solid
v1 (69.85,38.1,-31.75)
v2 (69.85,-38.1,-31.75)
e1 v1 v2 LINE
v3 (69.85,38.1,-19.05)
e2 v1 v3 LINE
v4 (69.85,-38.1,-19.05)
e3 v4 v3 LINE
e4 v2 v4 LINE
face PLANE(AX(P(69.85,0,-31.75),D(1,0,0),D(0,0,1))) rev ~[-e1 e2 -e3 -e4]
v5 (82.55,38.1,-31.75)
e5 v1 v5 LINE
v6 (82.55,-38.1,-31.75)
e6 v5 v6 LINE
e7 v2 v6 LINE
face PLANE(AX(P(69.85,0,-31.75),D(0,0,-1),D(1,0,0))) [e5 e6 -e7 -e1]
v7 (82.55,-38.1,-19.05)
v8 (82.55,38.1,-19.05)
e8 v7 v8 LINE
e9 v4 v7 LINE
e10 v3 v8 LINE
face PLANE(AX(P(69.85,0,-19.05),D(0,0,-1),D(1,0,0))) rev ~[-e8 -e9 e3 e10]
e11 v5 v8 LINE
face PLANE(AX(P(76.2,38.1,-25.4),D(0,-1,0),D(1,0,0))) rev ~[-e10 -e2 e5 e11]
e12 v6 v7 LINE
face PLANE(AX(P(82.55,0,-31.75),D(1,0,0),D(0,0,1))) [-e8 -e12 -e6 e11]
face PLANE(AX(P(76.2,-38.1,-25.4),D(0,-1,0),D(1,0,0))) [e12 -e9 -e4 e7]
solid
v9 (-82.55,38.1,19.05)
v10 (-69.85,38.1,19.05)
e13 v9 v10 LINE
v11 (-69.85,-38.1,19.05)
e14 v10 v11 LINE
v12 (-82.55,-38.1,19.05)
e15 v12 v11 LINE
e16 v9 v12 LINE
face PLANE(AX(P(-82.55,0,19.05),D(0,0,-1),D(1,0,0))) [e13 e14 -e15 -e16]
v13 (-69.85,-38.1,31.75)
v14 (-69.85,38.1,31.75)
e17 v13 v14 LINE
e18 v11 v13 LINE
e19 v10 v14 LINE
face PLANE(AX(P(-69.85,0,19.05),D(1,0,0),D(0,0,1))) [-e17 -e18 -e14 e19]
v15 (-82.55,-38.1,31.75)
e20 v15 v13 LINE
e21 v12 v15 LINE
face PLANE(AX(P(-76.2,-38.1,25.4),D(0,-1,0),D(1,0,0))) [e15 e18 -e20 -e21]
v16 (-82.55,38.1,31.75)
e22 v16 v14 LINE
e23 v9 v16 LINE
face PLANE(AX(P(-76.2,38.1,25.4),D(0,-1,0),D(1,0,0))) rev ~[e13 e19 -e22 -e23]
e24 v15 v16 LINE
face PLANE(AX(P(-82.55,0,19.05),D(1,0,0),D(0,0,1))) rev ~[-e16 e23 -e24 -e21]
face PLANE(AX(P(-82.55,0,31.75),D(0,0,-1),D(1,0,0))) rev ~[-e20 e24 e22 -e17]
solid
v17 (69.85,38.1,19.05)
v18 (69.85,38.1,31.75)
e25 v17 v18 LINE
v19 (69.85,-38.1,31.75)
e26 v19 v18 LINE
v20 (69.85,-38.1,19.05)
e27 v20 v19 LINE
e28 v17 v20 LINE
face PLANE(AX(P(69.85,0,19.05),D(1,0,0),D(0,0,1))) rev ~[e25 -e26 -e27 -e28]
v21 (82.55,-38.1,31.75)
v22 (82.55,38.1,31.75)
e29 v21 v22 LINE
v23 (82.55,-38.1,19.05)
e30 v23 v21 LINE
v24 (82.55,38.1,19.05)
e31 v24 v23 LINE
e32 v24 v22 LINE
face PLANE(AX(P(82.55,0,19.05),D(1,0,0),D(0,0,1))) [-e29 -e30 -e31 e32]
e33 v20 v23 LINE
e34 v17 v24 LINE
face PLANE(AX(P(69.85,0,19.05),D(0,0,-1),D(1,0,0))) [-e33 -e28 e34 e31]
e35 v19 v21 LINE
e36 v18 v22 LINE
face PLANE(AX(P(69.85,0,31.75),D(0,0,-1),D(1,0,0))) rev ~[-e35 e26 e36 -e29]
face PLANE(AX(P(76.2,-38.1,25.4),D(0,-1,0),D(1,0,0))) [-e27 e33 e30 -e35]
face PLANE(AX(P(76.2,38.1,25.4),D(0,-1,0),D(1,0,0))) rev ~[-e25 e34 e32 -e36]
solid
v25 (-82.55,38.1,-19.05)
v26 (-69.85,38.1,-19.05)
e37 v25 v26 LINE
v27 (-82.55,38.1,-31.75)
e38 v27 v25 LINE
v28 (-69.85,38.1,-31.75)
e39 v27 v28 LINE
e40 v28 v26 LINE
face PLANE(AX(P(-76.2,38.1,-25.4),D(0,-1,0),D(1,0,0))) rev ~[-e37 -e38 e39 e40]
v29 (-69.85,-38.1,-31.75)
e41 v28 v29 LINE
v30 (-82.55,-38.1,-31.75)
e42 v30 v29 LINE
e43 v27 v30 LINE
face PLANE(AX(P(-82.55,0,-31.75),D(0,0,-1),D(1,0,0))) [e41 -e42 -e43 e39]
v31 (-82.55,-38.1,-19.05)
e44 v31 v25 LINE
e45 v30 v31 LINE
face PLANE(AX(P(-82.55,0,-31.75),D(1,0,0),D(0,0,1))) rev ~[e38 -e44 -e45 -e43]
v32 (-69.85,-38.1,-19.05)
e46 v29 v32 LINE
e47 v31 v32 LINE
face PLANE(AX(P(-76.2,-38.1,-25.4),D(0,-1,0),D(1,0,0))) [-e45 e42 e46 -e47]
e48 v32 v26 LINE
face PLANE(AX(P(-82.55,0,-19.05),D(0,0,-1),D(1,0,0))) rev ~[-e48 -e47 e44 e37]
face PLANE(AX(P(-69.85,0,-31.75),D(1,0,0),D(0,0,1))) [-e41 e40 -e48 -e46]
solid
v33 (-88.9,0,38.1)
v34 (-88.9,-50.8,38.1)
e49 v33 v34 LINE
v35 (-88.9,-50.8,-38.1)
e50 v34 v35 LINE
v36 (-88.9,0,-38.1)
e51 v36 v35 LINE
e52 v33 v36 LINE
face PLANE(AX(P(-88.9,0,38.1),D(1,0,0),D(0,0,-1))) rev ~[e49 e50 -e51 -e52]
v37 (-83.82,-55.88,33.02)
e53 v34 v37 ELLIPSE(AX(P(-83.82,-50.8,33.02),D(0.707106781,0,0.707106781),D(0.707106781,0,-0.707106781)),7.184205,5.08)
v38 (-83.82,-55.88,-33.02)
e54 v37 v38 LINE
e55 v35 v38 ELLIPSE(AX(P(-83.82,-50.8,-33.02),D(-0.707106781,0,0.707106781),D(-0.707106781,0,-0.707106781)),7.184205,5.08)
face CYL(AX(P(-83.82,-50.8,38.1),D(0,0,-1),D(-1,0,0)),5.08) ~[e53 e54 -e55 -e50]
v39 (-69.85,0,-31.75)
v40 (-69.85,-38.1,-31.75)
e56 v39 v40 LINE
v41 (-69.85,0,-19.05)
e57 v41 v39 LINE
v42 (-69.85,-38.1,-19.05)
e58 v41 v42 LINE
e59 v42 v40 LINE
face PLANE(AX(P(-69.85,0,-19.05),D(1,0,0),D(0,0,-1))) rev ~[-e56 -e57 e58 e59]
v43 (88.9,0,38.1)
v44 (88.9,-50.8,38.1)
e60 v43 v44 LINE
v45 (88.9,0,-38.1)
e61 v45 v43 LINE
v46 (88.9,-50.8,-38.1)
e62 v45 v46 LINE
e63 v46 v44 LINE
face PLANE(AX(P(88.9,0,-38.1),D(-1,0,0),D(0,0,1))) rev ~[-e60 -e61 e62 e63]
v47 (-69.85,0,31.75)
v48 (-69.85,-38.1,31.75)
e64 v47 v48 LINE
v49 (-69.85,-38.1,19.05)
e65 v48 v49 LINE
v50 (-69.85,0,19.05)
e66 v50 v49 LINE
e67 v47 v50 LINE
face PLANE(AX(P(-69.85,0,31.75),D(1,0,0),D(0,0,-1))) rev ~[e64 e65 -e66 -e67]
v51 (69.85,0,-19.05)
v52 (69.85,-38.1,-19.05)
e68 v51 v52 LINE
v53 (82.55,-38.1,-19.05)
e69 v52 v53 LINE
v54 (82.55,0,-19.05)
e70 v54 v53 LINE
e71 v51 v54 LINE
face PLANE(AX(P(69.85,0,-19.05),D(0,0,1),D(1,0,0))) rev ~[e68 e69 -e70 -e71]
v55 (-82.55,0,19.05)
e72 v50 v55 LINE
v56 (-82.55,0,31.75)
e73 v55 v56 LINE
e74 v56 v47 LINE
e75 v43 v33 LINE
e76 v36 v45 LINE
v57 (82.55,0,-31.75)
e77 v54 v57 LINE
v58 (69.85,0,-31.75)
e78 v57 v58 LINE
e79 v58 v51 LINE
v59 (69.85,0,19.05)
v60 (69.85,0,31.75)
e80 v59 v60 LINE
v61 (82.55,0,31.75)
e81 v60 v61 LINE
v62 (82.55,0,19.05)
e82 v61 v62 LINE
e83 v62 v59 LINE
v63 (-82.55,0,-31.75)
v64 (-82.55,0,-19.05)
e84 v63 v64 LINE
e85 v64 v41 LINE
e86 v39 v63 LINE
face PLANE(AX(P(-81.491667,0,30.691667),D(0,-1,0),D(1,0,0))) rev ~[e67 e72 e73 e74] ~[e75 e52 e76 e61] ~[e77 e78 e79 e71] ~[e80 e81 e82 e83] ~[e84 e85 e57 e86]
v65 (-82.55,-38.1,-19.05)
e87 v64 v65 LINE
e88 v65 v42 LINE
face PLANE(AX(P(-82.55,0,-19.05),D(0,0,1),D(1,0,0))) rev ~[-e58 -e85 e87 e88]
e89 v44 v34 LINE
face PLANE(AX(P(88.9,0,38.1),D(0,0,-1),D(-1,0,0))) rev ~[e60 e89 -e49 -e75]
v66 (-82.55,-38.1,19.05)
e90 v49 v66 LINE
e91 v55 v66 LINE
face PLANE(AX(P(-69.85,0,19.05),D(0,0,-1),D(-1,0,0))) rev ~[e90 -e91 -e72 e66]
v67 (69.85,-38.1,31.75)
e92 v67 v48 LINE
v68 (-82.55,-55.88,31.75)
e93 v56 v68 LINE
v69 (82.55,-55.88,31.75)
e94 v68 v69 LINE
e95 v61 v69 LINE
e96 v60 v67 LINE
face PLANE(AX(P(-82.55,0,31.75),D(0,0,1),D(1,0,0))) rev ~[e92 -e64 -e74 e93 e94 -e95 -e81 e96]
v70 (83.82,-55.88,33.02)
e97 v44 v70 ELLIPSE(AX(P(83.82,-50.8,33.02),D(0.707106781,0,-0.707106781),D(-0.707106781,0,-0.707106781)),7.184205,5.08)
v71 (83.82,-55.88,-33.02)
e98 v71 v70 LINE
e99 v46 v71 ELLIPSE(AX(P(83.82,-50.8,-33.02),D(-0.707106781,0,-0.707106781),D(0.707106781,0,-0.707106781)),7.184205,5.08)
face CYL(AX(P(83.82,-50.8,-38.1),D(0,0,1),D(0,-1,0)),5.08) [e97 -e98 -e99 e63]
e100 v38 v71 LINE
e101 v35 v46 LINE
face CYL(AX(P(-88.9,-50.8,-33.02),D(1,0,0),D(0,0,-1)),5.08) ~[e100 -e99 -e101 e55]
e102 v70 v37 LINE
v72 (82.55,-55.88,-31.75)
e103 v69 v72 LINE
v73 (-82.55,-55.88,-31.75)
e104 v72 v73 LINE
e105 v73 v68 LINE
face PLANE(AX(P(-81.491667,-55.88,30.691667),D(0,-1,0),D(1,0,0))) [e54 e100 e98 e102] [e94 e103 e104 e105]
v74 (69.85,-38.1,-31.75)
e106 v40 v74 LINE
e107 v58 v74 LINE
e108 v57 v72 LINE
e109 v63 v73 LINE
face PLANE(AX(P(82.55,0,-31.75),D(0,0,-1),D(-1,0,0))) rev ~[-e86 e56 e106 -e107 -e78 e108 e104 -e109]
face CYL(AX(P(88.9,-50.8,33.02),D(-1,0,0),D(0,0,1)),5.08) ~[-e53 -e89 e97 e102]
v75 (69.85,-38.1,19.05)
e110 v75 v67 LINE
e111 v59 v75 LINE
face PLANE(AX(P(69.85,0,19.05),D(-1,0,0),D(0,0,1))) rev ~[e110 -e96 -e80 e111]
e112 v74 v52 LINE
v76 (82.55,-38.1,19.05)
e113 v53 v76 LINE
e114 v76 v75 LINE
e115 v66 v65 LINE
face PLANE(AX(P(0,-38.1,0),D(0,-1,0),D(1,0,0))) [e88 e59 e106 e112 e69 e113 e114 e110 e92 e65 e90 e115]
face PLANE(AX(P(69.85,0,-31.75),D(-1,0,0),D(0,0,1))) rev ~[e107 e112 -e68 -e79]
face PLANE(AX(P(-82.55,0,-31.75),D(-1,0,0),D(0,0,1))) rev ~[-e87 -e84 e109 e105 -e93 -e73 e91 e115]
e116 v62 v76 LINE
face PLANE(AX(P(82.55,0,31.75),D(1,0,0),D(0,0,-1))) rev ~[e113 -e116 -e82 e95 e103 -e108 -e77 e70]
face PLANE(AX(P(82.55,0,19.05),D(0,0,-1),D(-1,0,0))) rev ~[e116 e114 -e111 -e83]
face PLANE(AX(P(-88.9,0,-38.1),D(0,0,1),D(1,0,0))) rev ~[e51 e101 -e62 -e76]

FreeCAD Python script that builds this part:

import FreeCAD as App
import Part
import Sketcher
Q = App.Units.Quantity


def edges_at(feature, points):
    """Names of the edges that pass closest to the given points."""
    edges = feature.Shape.Edges
    near = lambda p: min(range(len(edges)), key=lambda i: edges[i].distToShape(Part.Vertex(*p))[0])
    return sorted({f"Edge{near(p) + 1}" for p in points})

doc = App.newDocument("Part")
body = doc.addObject("PartDesign::Body", "Body")

sketch1 = body.newObject("Sketcher::SketchObject", "Sketch")
sketch1.AttachmentSupport = (doc.getObject("XZ_Plane"), [""])
sketch1.MapMode = "FlatFace"
sketch1.addGeometry([
    Part.LineSegment(App.Vector(-88.9, 38.1, 0), App.Vector(-88.9, -38.1, 0)),
    Part.LineSegment(App.Vector(-88.9, -38.1, 0), App.Vector(88.9, -38.1, 0)),
    Part.LineSegment(App.Vector(88.9, -38.1, 0), App.Vector(88.9, 38.1, 0)),
    Part.LineSegment(App.Vector(88.9, 38.1, 0), App.Vector(-88.9, 38.1, 0)),
    Part.LineSegment(App.Vector(-82.55, 31.75, 0), App.Vector(82.55, 31.75, 0)),
    Part.LineSegment(App.Vector(82.55, 31.75, 0), App.Vector(82.55, -31.75, 0)),
    Part.LineSegment(App.Vector(82.55, -31.75, 0), App.Vector(-82.55, -31.75, 0)),
    Part.LineSegment(App.Vector(-82.55, -31.75, 0), App.Vector(-82.55, 31.75, 0)),
], False)
sketch1.addConstraint([
    Sketcher.Constraint("Coincident", 0, 2, 1, 1),
    Sketcher.Constraint("Coincident", 1, 2, 2, 1),
    Sketcher.Constraint("Coincident", 2, 2, 3, 1),
    Sketcher.Constraint("Coincident", 3, 2, 0, 1),
    Sketcher.Constraint("Coincident", 4, 2, 5, 1),
    Sketcher.Constraint("Coincident", 5, 2, 6, 1),
    Sketcher.Constraint("Coincident", 6, 2, 7, 1),
    Sketcher.Constraint("Coincident", 7, 2, 4, 1),
    Sketcher.Constraint("Vertical", 0),
    Sketcher.Constraint("Horizontal", 1),
    Sketcher.Constraint("Vertical", 2),
    Sketcher.Constraint("Horizontal", 3),
    Sketcher.Constraint("Horizontal", 4),
    Sketcher.Constraint("Vertical", 5),
    Sketcher.Constraint("Horizontal", 6),
    Sketcher.Constraint("Vertical", 7),
    Sketcher.Constraint("Symmetric", 0, 2, 2, 2, -1, 1),
    Sketcher.Constraint("Symmetric", 4, 2, 6, 2, -1, 1),
    Sketcher.Constraint("DistanceX", 1, 1, 1, 2, Q("7 in")),
    Sketcher.Constraint("DistanceY", 0, 2, 0, 1, Q("3 in")),
    Sketcher.Constraint("DistanceX", 4, 1, 4, 2, Q("6.5 in")),
    Sketcher.Constraint("DistanceY", 5, 2, 5, 1, Q("2.5 in")),
])
pad1 = body.newObject("PartDesign::Pad", "Pad")
pad1.Profile = sketch1
pad1.Length = Q("2.2 in")

sketch2 = body.newObject("Sketcher::SketchObject", "Sketch001")
sketch2.AttachmentSupport = (doc.getObject("XZ_Plane"), [""])
sketch2.MapMode = "FlatFace"
sketch2.addGeometry([
    Part.LineSegment(App.Vector(69.85, 19.05, 0), App.Vector(69.85, 31.75, 0)),
    Part.LineSegment(App.Vector(69.85, 31.75, 0), App.Vector(-69.85, 31.75, 0)),
    Part.LineSegment(App.Vector(-69.85, 31.75, 0), App.Vector(-69.85, 19.05, 0)),
    Part.LineSegment(App.Vector(-69.85, 19.05, 0), App.Vector(-82.55, 19.05, 0)),
    Part.LineSegment(App.Vector(-82.55, 19.05, 0), App.Vector(-82.55, -19.05, 0)),
    Part.LineSegment(App.Vector(-82.55, -19.05, 0), App.Vector(-69.85, -19.05, 0)),
    Part.LineSegment(App.Vector(-69.85, -19.05, 0), App.Vector(-69.85, -31.75, 0)),
    Part.LineSegment(App.Vector(-69.85, -31.75, 0), App.Vector(69.85, -31.75, 0)),
    Part.LineSegment(App.Vector(69.85, -31.75, 0), App.Vector(69.85, -19.05, 0)),
    Part.LineSegment(App.Vector(69.85, -19.05, 0), App.Vector(82.55, -19.05, 0)),
    Part.LineSegment(App.Vector(82.55, -19.05, 0), App.Vector(82.55, 19.05, 0)),
    Part.LineSegment(App.Vector(82.55, 19.05, 0), App.Vector(69.85, 19.05, 0)),
], False)
sketch2.addConstraint([
    Sketcher.Constraint("Coincident", 0, 2, 1, 1),
    Sketcher.Constraint("Coincident", 1, 2, 2, 1),
    Sketcher.Constraint("Coincident", 2, 2, 3, 1),
    Sketcher.Constraint("Coincident", 3, 2, 4, 1),
    Sketcher.Constraint("Coincident", 4, 2, 5, 1),
    Sketcher.Constraint("Coincident", 5, 2, 6, 1),
    Sketcher.Constraint("Coincident", 6, 2, 7, 1),
    Sketcher.Constraint("Coincident", 7, 2, 8, 1),
    Sketcher.Constraint("Coincident", 8, 2, 9, 1),
    Sketcher.Constraint("Coincident", 9, 2, 10, 1),
    Sketcher.Constraint("Coincident", 10, 2, 11, 1),
    Sketcher.Constraint("Coincident", 11, 2, 0, 1),
    Sketcher.Constraint("Vertical", 0),
    Sketcher.Constraint("Horizontal", 1),
    Sketcher.Constraint("Vertical", 2),
    Sketcher.Constraint("Horizontal", 3),
    Sketcher.Constraint("Vertical", 4),
    Sketcher.Constraint("Horizontal", 5),
    Sketcher.Constraint("Vertical", 6),
    Sketcher.Constraint("Horizontal", 7),
    Sketcher.Constraint("Vertical", 8),
    Sketcher.Constraint("Horizontal", 9),
    Sketcher.Constraint("Vertical", 10),
    Sketcher.Constraint("Horizontal", 11),
    Sketcher.Constraint("Symmetric", 0, 2, 6, 2, -1, 1),
    Sketcher.Constraint("Symmetric", 2, 2, 8, 2, -1, 1),
    Sketcher.Constraint("Symmetric", 4, 2, 10, 2, -1, 1),
    Sketcher.Constraint("Symmetric", 5, 2, 8, 2, -2),
    Sketcher.Constraint("Equal", 11, 0),
    Sketcher.Constraint("DistanceX", 1, 2, 1, 1, Q("5.5 in")),
    Sketcher.Constraint("DistanceX", 3, 2, 3, 1, Q("0.5 in")),
    Sketcher.Constraint("DistanceY", 4, 2, 4, 1, Q("1.5 in")),
])
pad2 = body.newObject("PartDesign::Pad", "Pad001")
pad2.Profile = sketch2
pad2.Length = Q("1.5 in")
doc.recompute()

fillet = body.newObject("PartDesign::Fillet", "Fillet")
fillet.Base = (pad2, edges_at(pad2, [
    (-88.9, -55.88, 0),
    (0, -55.88, 38.1),
    (0, -55.88, -38.1),
    (88.9, -55.88, 0),
]))
fillet.Radius = Q("0.2 in")
body2 = doc.addObject("PartDesign::Body", "Body001")

sketch3 = body2.newObject("Sketcher::SketchObject", "Sketch002")
sketch3.AttachmentSupport = (doc.getObject("XZ_Plane001"), [""])
sketch3.MapMode = "FlatFace"
sketch3.addGeometry([
    Part.LineSegment(App.Vector(-82.55, 31.75, 0), App.Vector(-82.55, 19.05, 0)),
    Part.LineSegment(App.Vector(-82.55, 19.05, 0), App.Vector(-69.85, 19.05, 0)),
    Part.LineSegment(App.Vector(-69.85, 19.05, 0), App.Vector(-69.85, 31.75, 0)),
    Part.LineSegment(App.Vector(-69.85, 31.75, 0), App.Vector(-82.55, 31.75, 0)),
], False)
sketch3.addConstraint([
    Sketcher.Constraint("Coincident", 0, 2, 1, 1),
    Sketcher.Constraint("Coincident", 1, 2, 2, 1),
    Sketcher.Constraint("Coincident", 2, 2, 3, 1),
    Sketcher.Constraint("Coincident", 3, 2, 0, 1),
    Sketcher.Constraint("Vertical", 0),
    Sketcher.Constraint("Horizontal", 1),
    Sketcher.Constraint("Vertical", 2),
    Sketcher.Constraint("Horizontal", 3),
    Sketcher.Constraint("Equal", 3, 0),
    Sketcher.Constraint("DistanceX", 1, 1, 1, 2, Q("0.5 in")),
    Sketcher.Constraint("DistanceX", 0, 2, -1, 1, Q("3.25 in")),
    Sketcher.Constraint("DistanceY", -1, 1, 0, 2, Q("0.75 in")),
])
pad3 = body2.newObject("PartDesign::Pad", "Pad002")
pad3.Profile = sketch3
pad3.Length = Q("3 in")
pad3.Midplane = True
body3 = doc.addObject("PartDesign::Body", "Body002")

sketch4 = body3.newObject("Sketcher::SketchObject", "Sketch003")
sketch4.AttachmentSupport = (doc.getObject("XZ_Plane002"), [""])
sketch4.MapMode = "FlatFace"
sketch4.addGeometry([
    Part.LineSegment(App.Vector(-82.55, -19.05, 0), App.Vector(-82.55, -31.75, 0)),
    Part.LineSegment(App.Vector(-82.55, -31.75, 0), App.Vector(-69.85, -31.75, 0)),
    Part.LineSegment(App.Vector(-69.85, -31.75, 0), App.Vector(-69.85, -19.05, 0)),
    Part.LineSegment(App.Vector(-69.85, -19.05, 0), App.Vector(-82.55, -19.05, 0)),
], False)
sketch4.addConstraint([
    Sketcher.Constraint("Coincident", 0, 2, 1, 1),
    Sketcher.Constraint("Coincident", 1, 2, 2, 1),
    Sketcher.Constraint("Coincident", 2, 2, 3, 1),
    Sketcher.Constraint("Coincident", 3, 2, 0, 1),
    Sketcher.Constraint("Vertical", 0),
    Sketcher.Constraint("Horizontal", 1),
    Sketcher.Constraint("Vertical", 2),
    Sketcher.Constraint("Horizontal", 3),
    Sketcher.Constraint("Equal", 3, 0),
    Sketcher.Constraint("DistanceX", 1, 1, 1, 2, Q("0.5 in")),
    Sketcher.Constraint("DistanceX", 0, 2, -1, 1, Q("3.25 in")),
    Sketcher.Constraint("DistanceY", 0, 2, -1, 1, Q("1.25 in")),
])
pad4 = body3.newObject("PartDesign::Pad", "Pad003")
pad4.Profile = sketch4
pad4.Length = Q("3 in")
pad4.Midplane = True
body4 = doc.addObject("PartDesign::Body", "Body003")

sketch5 = body4.newObject("Sketcher::SketchObject", "Sketch004")
sketch5.AttachmentSupport = (doc.getObject("XZ_Plane003"), [""])
sketch5.MapMode = "FlatFace"
sketch5.addGeometry([
    Part.LineSegment(App.Vector(69.85, -19.05, 0), App.Vector(69.85, -31.75, 0)),
    Part.LineSegment(App.Vector(69.85, -31.75, 0), App.Vector(82.55, -31.75, 0)),
    Part.LineSegment(App.Vector(82.55, -31.75, 0), App.Vector(82.55, -19.05, 0)),
    Part.LineSegment(App.Vector(82.55, -19.05, 0), App.Vector(69.85, -19.05, 0)),
], False)
sketch5.addConstraint([
    Sketcher.Constraint("Coincident", 0, 2, 1, 1),
    Sketcher.Constraint("Coincident", 1, 2, 2, 1),
    Sketcher.Constraint("Coincident", 2, 2, 3, 1),
    Sketcher.Constraint("Coincident", 3, 2, 0, 1),
    Sketcher.Constraint("Vertical", 0),
    Sketcher.Constraint("Horizontal", 1),
    Sketcher.Constraint("Vertical", 2),
    Sketcher.Constraint("Horizontal", 3),
    Sketcher.Constraint("Equal", 3, 0),
    Sketcher.Constraint("DistanceX", 1, 1, 1, 2, Q("0.5 in")),
    Sketcher.Constraint("DistanceX", -1, 1, 0, 2, Q("2.75 in")),
    Sketcher.Constraint("DistanceY", 0, 2, -1, 1, Q("1.25 in")),
])
pad5 = body4.newObject("PartDesign::Pad", "Pad004")
pad5.Profile = sketch5
pad5.Length = Q("3 in")
pad5.Midplane = True
body5 = doc.addObject("PartDesign::Body", "Body004")

sketch6 = body5.newObject("Sketcher::SketchObject", "Sketch005")
sketch6.AttachmentSupport = (doc.getObject("XZ_Plane004"), [""])
sketch6.MapMode = "FlatFace"
sketch6.addGeometry([
    Part.LineSegment(App.Vector(69.85, 31.75, 0), App.Vector(69.85, 19.05, 0)),
    Part.LineSegment(App.Vector(69.85, 19.05, 0), App.Vector(82.55, 19.05, 0)),
    Part.LineSegment(App.Vector(82.55, 19.05, 0), App.Vector(82.55, 31.75, 0)),
    Part.LineSegment(App.Vector(82.55, 31.75, 0), App.Vector(69.85, 31.75, 0)),
], False)
sketch6.addConstraint([
    Sketcher.Constraint("Coincident", 0, 2, 1, 1),
    Sketcher.Constraint("Coincident", 1, 2, 2, 1),
    Sketcher.Constraint("Coincident", 2, 2, 3, 1),
    Sketcher.Constraint("Coincident", 3, 2, 0, 1),
    Sketcher.Constraint("Vertical", 0),
    Sketcher.Constraint("Horizontal", 1),
    Sketcher.Constraint("Vertical", 2),
    Sketcher.Constraint("Horizontal", 3),
    Sketcher.Constraint("Equal", 3, 0),
    Sketcher.Constraint("DistanceX", 1, 1, 1, 2, Q("0.5 in")),
    Sketcher.Constraint("DistanceX", -1, 1, 0, 2, Q("2.75 in")),
    Sketcher.Constraint("DistanceY", -1, 1, 0, 2, Q("0.75 in")),
])
pad6 = body5.newObject("PartDesign::Pad", "Pad005")
pad6.Profile = sketch6
pad6.Length = Q("3 in")
pad6.Midplane = True

doc.recompute()
